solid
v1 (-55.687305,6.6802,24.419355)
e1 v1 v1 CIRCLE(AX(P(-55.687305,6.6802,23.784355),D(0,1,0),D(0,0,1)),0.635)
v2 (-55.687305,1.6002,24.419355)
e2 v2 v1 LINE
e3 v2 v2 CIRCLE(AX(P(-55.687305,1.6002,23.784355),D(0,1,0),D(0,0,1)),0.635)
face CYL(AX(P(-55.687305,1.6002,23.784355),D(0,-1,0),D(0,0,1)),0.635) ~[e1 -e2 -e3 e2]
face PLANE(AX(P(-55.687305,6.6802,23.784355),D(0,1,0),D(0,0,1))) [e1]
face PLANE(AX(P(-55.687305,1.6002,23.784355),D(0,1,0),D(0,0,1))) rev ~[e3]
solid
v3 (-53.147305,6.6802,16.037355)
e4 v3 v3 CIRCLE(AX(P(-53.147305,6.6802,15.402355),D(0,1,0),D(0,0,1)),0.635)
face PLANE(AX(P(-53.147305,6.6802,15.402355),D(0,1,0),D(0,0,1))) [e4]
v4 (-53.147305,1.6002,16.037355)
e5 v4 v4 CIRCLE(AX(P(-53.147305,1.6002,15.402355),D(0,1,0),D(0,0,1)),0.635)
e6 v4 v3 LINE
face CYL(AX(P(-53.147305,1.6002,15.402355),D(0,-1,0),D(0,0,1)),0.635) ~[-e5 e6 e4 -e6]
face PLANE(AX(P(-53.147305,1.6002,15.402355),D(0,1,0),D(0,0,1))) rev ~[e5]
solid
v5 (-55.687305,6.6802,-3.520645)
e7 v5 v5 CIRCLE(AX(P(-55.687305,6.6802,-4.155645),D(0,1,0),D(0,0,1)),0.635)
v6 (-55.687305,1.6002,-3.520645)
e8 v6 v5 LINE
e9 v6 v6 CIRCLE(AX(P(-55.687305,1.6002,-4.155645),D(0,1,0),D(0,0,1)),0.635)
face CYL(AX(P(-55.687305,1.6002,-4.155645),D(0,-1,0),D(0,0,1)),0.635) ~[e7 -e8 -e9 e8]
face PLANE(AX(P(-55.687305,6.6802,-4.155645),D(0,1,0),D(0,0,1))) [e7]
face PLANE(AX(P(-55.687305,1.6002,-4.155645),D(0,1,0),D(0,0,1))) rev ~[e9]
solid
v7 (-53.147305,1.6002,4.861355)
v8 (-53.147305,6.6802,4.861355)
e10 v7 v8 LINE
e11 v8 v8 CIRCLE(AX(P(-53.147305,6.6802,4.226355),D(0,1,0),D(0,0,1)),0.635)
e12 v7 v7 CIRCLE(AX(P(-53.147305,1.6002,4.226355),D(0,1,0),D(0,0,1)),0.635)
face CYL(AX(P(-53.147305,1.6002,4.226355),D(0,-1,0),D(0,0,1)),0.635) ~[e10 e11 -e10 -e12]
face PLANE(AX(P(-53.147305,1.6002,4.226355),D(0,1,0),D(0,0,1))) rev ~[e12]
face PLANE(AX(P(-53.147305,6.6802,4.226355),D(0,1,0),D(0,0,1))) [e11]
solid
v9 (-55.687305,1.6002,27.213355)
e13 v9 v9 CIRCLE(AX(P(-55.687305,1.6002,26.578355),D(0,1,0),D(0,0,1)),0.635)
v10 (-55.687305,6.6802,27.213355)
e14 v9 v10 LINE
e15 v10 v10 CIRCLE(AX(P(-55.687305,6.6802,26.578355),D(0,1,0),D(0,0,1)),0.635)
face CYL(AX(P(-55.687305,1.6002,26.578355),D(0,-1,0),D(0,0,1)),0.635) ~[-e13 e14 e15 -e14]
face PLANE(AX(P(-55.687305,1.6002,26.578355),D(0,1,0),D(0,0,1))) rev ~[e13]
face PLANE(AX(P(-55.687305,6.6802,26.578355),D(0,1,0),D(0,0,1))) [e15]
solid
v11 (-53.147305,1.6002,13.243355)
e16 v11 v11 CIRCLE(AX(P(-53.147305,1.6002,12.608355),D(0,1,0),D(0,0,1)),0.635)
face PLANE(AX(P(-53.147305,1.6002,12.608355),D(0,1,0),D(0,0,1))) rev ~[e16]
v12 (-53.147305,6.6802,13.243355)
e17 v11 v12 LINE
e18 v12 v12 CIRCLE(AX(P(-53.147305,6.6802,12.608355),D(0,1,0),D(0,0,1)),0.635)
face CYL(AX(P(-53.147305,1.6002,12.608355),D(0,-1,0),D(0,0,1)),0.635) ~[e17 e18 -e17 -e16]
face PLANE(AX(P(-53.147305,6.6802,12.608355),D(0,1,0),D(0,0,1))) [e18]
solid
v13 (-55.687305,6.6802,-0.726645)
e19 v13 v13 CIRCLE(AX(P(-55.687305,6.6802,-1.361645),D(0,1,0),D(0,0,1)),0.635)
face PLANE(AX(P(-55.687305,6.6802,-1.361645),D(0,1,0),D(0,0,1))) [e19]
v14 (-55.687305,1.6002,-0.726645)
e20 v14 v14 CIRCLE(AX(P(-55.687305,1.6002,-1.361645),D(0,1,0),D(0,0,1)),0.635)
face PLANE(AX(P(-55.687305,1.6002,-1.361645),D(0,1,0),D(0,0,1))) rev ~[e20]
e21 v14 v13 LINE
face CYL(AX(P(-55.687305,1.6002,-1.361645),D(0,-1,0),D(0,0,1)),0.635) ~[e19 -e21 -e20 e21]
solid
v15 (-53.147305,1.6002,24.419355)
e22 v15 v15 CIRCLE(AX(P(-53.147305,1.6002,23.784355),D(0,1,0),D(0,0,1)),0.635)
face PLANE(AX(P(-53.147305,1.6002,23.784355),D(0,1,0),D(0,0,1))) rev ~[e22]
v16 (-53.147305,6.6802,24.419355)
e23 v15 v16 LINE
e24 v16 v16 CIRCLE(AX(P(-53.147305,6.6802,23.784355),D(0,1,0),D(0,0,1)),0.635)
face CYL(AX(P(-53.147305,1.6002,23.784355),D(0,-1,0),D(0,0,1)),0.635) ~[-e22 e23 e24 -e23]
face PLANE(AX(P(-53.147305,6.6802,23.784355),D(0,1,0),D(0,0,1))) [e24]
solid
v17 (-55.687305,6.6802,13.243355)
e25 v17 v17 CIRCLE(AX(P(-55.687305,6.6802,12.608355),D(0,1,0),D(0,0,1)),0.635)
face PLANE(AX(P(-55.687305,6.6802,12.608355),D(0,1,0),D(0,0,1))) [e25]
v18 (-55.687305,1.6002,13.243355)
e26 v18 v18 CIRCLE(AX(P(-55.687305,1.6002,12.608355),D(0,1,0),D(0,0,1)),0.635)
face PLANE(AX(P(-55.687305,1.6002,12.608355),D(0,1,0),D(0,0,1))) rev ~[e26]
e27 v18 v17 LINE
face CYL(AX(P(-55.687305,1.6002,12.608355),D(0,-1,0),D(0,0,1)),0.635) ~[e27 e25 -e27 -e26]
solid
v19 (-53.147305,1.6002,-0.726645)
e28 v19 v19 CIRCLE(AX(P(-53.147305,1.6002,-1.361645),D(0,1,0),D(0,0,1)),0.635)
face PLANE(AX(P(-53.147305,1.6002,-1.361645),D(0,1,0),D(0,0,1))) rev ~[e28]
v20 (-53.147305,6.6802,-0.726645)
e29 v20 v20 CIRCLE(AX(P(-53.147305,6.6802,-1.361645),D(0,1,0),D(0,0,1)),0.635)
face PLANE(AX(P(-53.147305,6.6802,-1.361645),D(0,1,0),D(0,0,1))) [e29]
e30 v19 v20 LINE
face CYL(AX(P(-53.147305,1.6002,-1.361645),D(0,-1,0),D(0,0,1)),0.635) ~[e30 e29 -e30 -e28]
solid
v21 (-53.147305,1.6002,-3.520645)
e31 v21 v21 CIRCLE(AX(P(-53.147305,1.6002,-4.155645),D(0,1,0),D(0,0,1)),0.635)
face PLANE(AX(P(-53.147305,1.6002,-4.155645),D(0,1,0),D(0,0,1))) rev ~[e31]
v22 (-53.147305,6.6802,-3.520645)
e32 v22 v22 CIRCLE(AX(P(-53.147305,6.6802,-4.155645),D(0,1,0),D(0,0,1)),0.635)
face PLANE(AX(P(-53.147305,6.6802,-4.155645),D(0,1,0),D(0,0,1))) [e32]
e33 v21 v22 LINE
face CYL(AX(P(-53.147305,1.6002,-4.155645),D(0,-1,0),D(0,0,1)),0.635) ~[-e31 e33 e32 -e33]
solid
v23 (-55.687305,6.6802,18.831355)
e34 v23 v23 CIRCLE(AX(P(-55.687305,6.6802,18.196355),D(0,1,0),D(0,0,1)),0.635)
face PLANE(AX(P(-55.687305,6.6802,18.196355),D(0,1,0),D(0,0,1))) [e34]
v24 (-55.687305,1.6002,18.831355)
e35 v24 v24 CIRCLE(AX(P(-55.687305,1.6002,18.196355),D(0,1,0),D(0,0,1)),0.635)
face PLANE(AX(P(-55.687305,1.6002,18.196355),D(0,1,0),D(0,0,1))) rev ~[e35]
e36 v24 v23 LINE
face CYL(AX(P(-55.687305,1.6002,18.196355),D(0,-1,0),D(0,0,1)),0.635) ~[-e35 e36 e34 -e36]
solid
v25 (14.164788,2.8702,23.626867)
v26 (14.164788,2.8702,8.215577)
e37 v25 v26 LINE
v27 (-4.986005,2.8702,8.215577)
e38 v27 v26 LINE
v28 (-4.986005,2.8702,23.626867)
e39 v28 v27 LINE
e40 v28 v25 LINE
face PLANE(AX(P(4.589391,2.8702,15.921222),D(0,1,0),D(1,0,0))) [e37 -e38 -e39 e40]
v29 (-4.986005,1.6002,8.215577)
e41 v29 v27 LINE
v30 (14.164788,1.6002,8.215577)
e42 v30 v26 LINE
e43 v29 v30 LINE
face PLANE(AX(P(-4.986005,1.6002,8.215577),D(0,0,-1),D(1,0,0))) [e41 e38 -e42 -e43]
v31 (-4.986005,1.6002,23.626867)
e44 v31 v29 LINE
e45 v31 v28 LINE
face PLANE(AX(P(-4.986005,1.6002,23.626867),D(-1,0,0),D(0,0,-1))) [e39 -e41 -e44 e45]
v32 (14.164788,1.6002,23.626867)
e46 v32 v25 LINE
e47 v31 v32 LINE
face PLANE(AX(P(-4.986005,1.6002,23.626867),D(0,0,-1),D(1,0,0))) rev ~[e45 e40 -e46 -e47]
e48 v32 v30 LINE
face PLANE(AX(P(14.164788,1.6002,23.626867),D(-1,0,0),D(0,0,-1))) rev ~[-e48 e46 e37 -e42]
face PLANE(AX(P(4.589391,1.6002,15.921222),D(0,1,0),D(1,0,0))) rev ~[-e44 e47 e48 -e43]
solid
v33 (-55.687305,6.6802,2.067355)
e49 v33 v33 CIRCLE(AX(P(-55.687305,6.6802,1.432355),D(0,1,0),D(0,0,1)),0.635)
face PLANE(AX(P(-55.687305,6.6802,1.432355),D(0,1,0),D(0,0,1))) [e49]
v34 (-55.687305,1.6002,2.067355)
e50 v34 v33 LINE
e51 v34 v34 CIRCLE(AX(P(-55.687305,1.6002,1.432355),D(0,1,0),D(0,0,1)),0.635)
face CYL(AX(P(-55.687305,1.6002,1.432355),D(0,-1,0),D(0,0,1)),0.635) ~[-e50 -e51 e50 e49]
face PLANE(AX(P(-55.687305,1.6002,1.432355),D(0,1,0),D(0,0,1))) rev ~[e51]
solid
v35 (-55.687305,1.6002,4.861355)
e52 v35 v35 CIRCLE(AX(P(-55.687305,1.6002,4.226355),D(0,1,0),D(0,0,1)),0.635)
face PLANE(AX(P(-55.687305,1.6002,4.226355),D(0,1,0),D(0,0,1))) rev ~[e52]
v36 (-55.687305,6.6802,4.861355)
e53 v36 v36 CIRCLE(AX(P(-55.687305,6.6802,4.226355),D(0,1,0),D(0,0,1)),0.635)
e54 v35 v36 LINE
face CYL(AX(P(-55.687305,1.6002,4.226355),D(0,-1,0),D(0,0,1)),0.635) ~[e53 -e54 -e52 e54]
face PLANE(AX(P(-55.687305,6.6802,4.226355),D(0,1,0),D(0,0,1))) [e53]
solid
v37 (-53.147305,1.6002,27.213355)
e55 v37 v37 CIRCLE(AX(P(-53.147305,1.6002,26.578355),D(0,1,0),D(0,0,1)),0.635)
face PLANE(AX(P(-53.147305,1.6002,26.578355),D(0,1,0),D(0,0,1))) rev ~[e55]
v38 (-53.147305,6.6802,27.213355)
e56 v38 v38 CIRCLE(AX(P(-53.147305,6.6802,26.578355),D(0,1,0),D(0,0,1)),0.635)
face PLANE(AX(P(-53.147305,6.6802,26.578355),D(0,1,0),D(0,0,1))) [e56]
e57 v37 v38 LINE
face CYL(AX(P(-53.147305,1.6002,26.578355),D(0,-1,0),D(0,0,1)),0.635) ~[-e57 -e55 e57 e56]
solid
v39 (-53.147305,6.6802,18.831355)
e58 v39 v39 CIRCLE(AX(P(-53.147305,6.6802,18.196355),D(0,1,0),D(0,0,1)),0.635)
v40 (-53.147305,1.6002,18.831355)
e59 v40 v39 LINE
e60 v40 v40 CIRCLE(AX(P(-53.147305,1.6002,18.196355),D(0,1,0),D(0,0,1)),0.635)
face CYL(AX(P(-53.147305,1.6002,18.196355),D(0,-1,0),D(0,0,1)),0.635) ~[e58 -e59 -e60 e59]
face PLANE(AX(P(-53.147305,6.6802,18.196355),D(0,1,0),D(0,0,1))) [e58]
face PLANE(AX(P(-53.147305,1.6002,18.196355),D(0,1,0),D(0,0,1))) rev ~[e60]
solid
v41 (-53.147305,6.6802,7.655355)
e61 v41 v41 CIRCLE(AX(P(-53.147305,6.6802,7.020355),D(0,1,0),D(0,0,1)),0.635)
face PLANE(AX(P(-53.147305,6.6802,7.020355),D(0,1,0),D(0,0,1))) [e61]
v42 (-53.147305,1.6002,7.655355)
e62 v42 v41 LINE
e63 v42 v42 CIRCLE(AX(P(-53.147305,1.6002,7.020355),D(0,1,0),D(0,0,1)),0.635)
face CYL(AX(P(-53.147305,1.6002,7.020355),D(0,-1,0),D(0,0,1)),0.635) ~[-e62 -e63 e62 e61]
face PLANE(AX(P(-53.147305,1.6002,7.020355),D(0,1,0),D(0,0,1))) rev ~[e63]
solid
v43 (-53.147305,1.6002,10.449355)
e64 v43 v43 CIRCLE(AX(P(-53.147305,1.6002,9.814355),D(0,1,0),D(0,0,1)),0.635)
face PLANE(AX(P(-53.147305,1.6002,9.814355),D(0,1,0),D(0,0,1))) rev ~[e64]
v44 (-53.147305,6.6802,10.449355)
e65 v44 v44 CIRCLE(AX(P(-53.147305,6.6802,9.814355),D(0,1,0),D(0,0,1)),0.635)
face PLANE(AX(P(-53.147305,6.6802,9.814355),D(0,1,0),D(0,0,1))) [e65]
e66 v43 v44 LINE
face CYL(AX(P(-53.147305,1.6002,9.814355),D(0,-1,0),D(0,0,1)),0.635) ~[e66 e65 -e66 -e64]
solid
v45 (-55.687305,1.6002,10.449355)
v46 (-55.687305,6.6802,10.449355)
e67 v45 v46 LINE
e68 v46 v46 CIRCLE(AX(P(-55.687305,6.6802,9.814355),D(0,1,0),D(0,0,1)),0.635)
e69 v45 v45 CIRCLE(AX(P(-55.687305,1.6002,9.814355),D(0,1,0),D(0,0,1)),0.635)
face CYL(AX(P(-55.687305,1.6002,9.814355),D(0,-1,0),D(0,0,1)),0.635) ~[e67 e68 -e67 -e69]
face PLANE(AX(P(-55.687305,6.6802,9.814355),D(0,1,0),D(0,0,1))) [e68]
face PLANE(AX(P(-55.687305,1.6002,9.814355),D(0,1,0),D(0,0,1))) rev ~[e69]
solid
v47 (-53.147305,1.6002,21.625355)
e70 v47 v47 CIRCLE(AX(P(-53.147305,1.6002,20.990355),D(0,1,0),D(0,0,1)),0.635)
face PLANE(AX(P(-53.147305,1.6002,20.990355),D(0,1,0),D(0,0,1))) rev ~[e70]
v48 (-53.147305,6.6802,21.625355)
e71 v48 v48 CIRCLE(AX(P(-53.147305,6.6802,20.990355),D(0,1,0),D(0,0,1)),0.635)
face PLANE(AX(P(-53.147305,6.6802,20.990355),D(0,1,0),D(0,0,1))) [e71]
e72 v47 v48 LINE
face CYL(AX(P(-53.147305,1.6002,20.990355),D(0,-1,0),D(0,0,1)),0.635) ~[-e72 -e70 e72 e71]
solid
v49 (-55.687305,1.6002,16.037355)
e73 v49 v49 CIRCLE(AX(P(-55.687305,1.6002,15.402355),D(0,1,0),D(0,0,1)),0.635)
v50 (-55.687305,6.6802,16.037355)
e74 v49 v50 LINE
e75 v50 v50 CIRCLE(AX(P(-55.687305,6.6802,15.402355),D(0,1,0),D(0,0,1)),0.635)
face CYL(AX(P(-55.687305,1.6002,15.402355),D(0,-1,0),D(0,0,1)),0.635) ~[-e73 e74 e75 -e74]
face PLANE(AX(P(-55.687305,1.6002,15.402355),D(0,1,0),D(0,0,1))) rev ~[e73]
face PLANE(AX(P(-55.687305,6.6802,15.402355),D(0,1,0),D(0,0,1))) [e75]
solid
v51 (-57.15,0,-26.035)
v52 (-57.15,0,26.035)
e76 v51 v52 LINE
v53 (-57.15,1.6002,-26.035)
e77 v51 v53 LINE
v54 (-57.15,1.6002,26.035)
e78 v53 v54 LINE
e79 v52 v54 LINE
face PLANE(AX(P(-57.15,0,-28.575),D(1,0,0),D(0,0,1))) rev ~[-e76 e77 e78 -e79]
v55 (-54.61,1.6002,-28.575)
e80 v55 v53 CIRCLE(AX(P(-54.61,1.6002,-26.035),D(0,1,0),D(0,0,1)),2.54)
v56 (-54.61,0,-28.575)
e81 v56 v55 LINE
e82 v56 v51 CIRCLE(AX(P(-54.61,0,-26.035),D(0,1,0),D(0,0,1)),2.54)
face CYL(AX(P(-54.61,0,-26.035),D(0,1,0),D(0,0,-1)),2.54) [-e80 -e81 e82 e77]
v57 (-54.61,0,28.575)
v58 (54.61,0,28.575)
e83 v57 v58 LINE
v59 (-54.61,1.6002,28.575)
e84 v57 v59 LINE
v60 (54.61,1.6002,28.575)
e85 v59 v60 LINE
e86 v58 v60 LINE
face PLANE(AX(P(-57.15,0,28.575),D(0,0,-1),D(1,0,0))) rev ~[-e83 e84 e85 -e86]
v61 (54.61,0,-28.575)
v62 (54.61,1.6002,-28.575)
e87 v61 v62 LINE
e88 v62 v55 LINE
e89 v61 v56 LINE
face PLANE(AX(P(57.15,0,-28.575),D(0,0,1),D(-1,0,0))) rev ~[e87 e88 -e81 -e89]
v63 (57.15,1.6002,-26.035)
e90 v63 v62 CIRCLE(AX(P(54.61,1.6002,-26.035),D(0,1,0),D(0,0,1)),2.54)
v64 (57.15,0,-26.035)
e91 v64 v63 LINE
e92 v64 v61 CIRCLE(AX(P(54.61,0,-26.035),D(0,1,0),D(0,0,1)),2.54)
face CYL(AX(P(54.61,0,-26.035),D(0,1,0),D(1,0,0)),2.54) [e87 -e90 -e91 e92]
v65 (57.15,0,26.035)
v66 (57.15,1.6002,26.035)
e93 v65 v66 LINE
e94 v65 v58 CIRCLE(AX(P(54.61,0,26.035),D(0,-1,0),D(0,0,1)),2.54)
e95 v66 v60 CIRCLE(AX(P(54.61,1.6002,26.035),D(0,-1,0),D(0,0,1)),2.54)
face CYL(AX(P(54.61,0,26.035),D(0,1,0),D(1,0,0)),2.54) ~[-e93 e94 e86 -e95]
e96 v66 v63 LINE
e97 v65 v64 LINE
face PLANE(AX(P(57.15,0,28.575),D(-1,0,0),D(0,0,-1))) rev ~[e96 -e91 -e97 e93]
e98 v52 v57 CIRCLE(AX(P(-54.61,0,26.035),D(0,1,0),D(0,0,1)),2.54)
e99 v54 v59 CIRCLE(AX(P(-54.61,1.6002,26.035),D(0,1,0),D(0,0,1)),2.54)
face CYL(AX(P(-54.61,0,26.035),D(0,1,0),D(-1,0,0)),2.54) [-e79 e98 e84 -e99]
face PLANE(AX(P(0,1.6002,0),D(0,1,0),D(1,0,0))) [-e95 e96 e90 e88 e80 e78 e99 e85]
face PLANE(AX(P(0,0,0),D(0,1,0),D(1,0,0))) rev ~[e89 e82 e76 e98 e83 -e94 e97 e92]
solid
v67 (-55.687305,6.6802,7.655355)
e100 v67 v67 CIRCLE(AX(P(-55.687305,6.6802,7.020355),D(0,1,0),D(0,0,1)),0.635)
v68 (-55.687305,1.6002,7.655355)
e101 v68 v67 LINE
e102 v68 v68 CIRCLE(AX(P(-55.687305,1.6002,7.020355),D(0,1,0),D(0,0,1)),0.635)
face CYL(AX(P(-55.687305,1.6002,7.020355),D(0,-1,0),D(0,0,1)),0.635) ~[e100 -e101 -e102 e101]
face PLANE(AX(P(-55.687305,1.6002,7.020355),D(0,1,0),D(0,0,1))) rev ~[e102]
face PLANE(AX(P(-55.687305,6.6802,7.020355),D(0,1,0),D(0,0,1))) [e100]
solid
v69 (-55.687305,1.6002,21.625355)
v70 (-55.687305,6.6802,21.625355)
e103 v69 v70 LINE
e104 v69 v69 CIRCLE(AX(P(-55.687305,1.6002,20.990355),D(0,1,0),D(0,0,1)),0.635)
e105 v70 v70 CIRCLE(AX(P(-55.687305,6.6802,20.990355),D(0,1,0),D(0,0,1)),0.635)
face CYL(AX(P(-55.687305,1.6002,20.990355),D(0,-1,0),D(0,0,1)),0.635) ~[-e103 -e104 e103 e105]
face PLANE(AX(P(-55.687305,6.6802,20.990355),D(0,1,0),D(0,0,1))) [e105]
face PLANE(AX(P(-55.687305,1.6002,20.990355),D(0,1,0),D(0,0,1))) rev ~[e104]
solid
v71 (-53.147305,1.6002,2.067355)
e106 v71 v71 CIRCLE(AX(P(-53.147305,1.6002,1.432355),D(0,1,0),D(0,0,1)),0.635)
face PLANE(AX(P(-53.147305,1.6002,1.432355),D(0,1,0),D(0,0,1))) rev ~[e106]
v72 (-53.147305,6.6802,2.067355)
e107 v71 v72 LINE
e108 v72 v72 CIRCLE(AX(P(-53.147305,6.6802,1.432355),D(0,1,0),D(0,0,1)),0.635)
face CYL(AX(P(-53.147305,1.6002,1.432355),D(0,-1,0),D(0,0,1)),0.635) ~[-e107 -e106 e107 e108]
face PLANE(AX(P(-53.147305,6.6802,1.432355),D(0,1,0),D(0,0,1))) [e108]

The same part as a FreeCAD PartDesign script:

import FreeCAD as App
import Part
import Sketcher
from FreeCAD import Vector
Q = App.Units.Quantity


def edges_at(feature, points):
    """Names of the edges that pass closest to the given points."""
    edges = feature.Shape.Edges
    near = lambda p: min(range(len(edges)), key=lambda i: edges[i].distToShape(Part.Vertex(*p))[0])
    return sorted({f"Edge{near(p) + 1}" for p in points})

doc = App.newDocument("Part")
body = doc.addObject("PartDesign::Body", "Body")

# Sketch on XZ plane
sketch1 = body.newObject("Sketcher::SketchObject", "Sketch")
sketch1.AttachmentSupport = (doc.getObject("XZ_Plane"), [""])
sketch1.MapMode = "FlatFace"
sketch1.addGeometry(Part.LineSegment(Vector(57, 29, 0), Vector(57, -29, 0)), False)
sketch1.addGeometry(Part.LineSegment(Vector(57, -29, 0), Vector(-57, -29, 0)), False)
sketch1.addGeometry(Part.LineSegment(Vector(-57, -29, 0), Vector(-57, 29, 0)), False)
sketch1.addGeometry(Part.LineSegment(Vector(-57, 29, 0), Vector(57, 29, 0)), False)
sketch1.addConstraint(Sketcher.Constraint("Coincident", 0, 2, 1, 1))
sketch1.addConstraint(Sketcher.Constraint("Coincident", 1, 2, 2, 1))
sketch1.addConstraint(Sketcher.Constraint("Coincident", 2, 2, 3, 1))
sketch1.addConstraint(Sketcher.Constraint("Coincident", 3, 2, 0, 1))
sketch1.addConstraint(Sketcher.Constraint("Vertical", 0))
sketch1.addConstraint(Sketcher.Constraint("Horizontal", 1))
sketch1.addConstraint(Sketcher.Constraint("Vertical", 2))
sketch1.addConstraint(Sketcher.Constraint("Horizontal", 3))
sketch1.addConstraint(Sketcher.Constraint("Symmetric", 0, 2, 2, 2, -1, 1))
sketch1.addConstraint(Sketcher.Constraint("DistanceX", 1, 2, 1, 1, Q("4.5 in")))
sketch1.addConstraint(Sketcher.Constraint("DistanceY", 0, 2, 0, 1, Q("2.25 in")))
pad1 = body.newObject("PartDesign::Pad", "Pad")
pad1.Profile = sketch1
pad1.Length = Q("0.063 in")
pad1.Reversed = True
doc.recompute()

fillet = body.newObject("PartDesign::Fillet", "Fillet")
fillet.Base = (pad1, edges_at(pad1, [
    (57.15, 0.8, 28.575),
    (-57.15, 0.8, 28.575),
    (-57.15, 0.8, -28.575),
    (57.15, 0.8, -28.575),
]))
fillet.Radius = Q("0.1 in")
body2 = doc.addObject("PartDesign::Body", "Body001")

# Sketch on XZ plane
sketch2 = body2.newObject("Sketcher::SketchObject", "Sketch001")
sketch2.AttachmentSupport = (doc.getObject("XZ_Plane001"), [""])
sketch2.MapMode = "FlatFace"
sketch2.AttachmentOffset = App.Placement(Vector(0, 0, -0.063 * 25.4), App.Rotation())
sketch2.addGeometry(Part.LineSegment(Vector(-5, 8, 0), Vector(-5, 24, 0)), False)
sketch2.addGeometry(Part.LineSegment(Vector(-5, 24, 0), Vector(14, 24, 0)), False)
sketch2.addGeometry(Part.LineSegment(Vector(14, 24, 0), Vector(14, 8, 0)), False)
sketch2.addGeometry(Part.LineSegment(Vector(14, 8, 0), Vector(-5, 8, 0)), False)
sketch2.addConstraint(Sketcher.Constraint("Coincident", 0, 2, 1, 1))
sketch2.addConstraint(Sketcher.Constraint("Coincident", 1, 2, 2, 1))
sketch2.addConstraint(Sketcher.Constraint("Coincident", 2, 2, 3, 1))
sketch2.addConstraint(Sketcher.Constraint("Coincident", 3, 2, 0, 1))
sketch2.addConstraint(Sketcher.Constraint("Vertical", 0))
sketch2.addConstraint(Sketcher.Constraint("Horizontal", 1))
sketch2.addConstraint(Sketcher.Constraint("Vertical", 2))
sketch2.addConstraint(Sketcher.Constraint("Horizontal", 3))
sketch2.addConstraint(Sketcher.Constraint("DistanceY", 0, 1, 0, 2, Q("15.41129 mm")))
sketch2.addConstraint(Sketcher.Constraint("DistanceX", 1, 1, 1, 2, Q("19.150794 mm")))
sketch2.addConstraint(Sketcher.Constraint("DistanceX", -1, 1, 1, 2, Q("14.164788 mm")))
sketch2.addConstraint(Sketcher.Constraint("DistanceY", -1, 1, 0, 2, Q("23.626867 mm")))
pad2 = body2.newObject("PartDesign::Pad", "Pad001")
pad2.Profile = sketch2
pad2.Length = Q("0.05 in")
pad2.Reversed = True
body3 = doc.addObject("PartDesign::Body", "Body002")

# Sketch on XZ plane
sketch3 = body3.newObject("Sketcher::SketchObject", "Sketch002")
sketch3.AttachmentSupport = (doc.getObject("XZ_Plane002"), [""])
sketch3.MapMode = "FlatFace"
sketch3.AttachmentOffset = App.Placement(Vector(0, 0, -0.063 * 25.4), App.Rotation())
sketch3.addGeometry(Part.Circle(Vector(-55.7, -4.2, 0), Vector(0, 0, 1), 0.6), False)
sketch3.addConstraint(Sketcher.Constraint("Diameter", 0, Q("0.05 in")))
sketch3.addConstraint(Sketcher.Constraint("DistanceX", 0, 3, -1, 1, Q("55.687305 mm")))
sketch3.addConstraint(Sketcher.Constraint("DistanceY", 0, 3, -1, 1, Q("4.155645 mm")))
pad3 = body3.newObject("PartDesign::Pad", "Pad002")
pad3.Profile = sketch3
pad3.Length = Q("0.2 in")
pad3.Reversed = True
body4 = doc.addObject("PartDesign::Body", "Body003")

# Sketch on XZ plane
sketch4 = body4.newObject("Sketcher::SketchObject", "Sketch003")
sketch4.AttachmentSupport = (doc.getObject("XZ_Plane003"), [""])
sketch4.MapMode = "FlatFace"
sketch4.AttachmentOffset = App.Placement(Vector(0, 0, -0.063 * 25.4), App.Rotation())
sketch4.addGeometry(Part.Circle(Vector(-53.1, -4.2, 0), Vector(0, 0, 1), 0.6), False)
sketch4.addConstraint(Sketcher.Constraint("Diameter", 0, Q("0.05 in")))
sketch4.addConstraint(Sketcher.Constraint("DistanceX", 0, 3, -1, 1, Q("53.147305 mm")))
sketch4.addConstraint(Sketcher.Constraint("DistanceY", 0, 3, -1, 1, Q("4.155645 mm")))
pad4 = body4.newObject("PartDesign::Pad", "Pad003")
pad4.Profile = sketch4
pad4.Length = Q("0.2 in")
pad4.Reversed = True
body5 = doc.addObject("PartDesign::Body", "Body004")

# Sketch on XZ plane
sketch5 = body5.newObject("Sketcher::SketchObject", "Sketch004")
sketch5.AttachmentSupport = (doc.getObject("XZ_Plane004"), [""])
sketch5.MapMode = "FlatFace"
sketch5.AttachmentOffset = App.Placement(Vector(0, 0, -0.063 * 25.4), App.Rotation())
sketch5.addGeometry(Part.Circle(Vector(-55.7, -1.4, 0), Vector(0, 0, 1), 0.6), False)
sketch5.addConstraint(Sketcher.Constraint("Diameter", 0, Q("0.05 in")))
sketch5.addConstraint(Sketcher.Constraint("DistanceX", 0, 3, -1, 1, Q("55.687305 mm")))
sketch5.addConstraint(Sketcher.Constraint("DistanceY", 0, 3, -1, 1, Q("1.361645 mm")))
pad5 = body5.newObject("PartDesign::Pad", "Pad004")
pad5.Profile = sketch5
pad5.Length = Q("0.2 in")
pad5.Reversed = True
body6 = doc.addObject("PartDesign::Body", "Body005")

# Sketch on XZ plane
sketch6 = body6.newObject("Sketcher::SketchObject", "Sketch005")
sketch6.AttachmentSupport = (doc.getObject("XZ_Plane005"), [""])
sketch6.MapMode = "FlatFace"
sketch6.AttachmentOffset = App.Placement(Vector(0, 0, -0.063 * 25.4), App.Rotation())
sketch6.addGeometry(Part.Circle(Vector(-53.1, -1.4, 0), Vector(0, 0, 1), 0.6), False)
sketch6.addConstraint(Sketcher.Constraint("Diameter", 0, Q("0.05 in")))
sketch6.addConstraint(Sketcher.Constraint("DistanceX", 0, 3, -1, 1, Q("53.147305 mm")))
sketch6.addConstraint(Sketcher.Constraint("DistanceY", 0, 3, -1, 1, Q("1.361645 mm")))
pad6 = body6.newObject("PartDesign::Pad", "Pad005")
pad6.Profile = sketch6
pad6.Length = Q("0.2 in")
pad6.Reversed = True
body7 = doc.addObject("PartDesign::Body", "Body006")

# Sketch on XZ plane
sketch7 = body7.newObject("Sketcher::SketchObject", "Sketch006")
sketch7.AttachmentSupport = (doc.getObject("XZ_Plane006"), [""])
sketch7.MapMode = "FlatFace"
sketch7.AttachmentOffset = App.Placement(Vector(0, 0, -0.063 * 25.4), App.Rotation())
sketch7.addGeometry(Part.Circle(Vector(-55.7, 1.4, 0), Vector(0, 0, 1), 0.6), False)
sketch7.addConstraint(Sketcher.Constraint("Diameter", 0, Q("0.05 in")))
sketch7.addConstraint(Sketcher.Constraint("DistanceX", 0, 3, -1, 1, Q("55.687305 mm")))
sketch7.addConstraint(Sketcher.Constraint("DistanceY", -1, 1, 0, 3, Q("1.432355 mm")))
pad7 = body7.newObject("PartDesign::Pad", "Pad006")
pad7.Profile = sketch7
pad7.Length = Q("0.2 in")
pad7.Reversed = True
body8 = doc.addObject("PartDesign::Body", "Body007")

# Sketch on XZ plane
sketch8 = body8.newObject("Sketcher::SketchObject", "Sketch007")
sketch8.AttachmentSupport = (doc.getObject("XZ_Plane007"), [""])
sketch8.MapMode = "FlatFace"
sketch8.AttachmentOffset = App.Placement(Vector(0, 0, -0.063 * 25.4), App.Rotation())
sketch8.addGeometry(Part.Circle(Vector(-53.1, 1.4, 0), Vector(0, 0, 1), 0.6), False)
sketch8.addConstraint(Sketcher.Constraint("Diameter", 0, Q("0.05 in")))
sketch8.addConstraint(Sketcher.Constraint("DistanceX", 0, 3, -1, 1, Q("53.147305 mm")))
sketch8.addConstraint(Sketcher.Constraint("DistanceY", -1, 1, 0, 3, Q("1.432355 mm")))
pad8 = body8.newObject("PartDesign::Pad", "Pad007")
pad8.Profile = sketch8
pad8.Length = Q("0.2 in")
pad8.Reversed = True
body9 = doc.addObject("PartDesign::Body", "Body008")

# Sketch on XZ plane
sketch9 = body9.newObject("Sketcher::SketchObject", "Sketch008")
sketch9.AttachmentSupport = (doc.getObject("XZ_Plane008"), [""])
sketch9.MapMode = "FlatFace"
sketch9.AttachmentOffset = App.Placement(Vector(0, 0, -0.063 * 25.4), App.Rotation())
sketch9.addGeometry(Part.Circle(Vector(-55.7, 4.2, 0), Vector(0, 0, 1), 0.6), False)
sketch9.addConstraint(Sketcher.Constraint("Diameter", 0, Q("0.05 in")))
sketch9.addConstraint(Sketcher.Constraint("DistanceX", 0, 3, -1, 1, Q("55.687305 mm")))
sketch9.addConstraint(Sketcher.Constraint("DistanceY", -1, 1, 0, 3, Q("4.226355 mm")))
pad9 = body9.newObject("PartDesign::Pad", "Pad008")
pad9.Profile = sketch9
pad9.Length = Q("0.2 in")
pad9.Reversed = True
body10 = doc.addObject("PartDesign::Body", "Body009")

# Sketch on XZ plane
sketch10 = body10.newObject("Sketcher::SketchObject", "Sketch009")
sketch10.AttachmentSupport = (doc.getObject("XZ_Plane009"), [""])
sketch10.MapMode = "FlatFace"
sketch10.AttachmentOffset = App.Placement(Vector(0, 0, -0.063 * 25.4), App.Rotation())
sketch10.addGeometry(Part.Circle(Vector(-53.1, 4.2, 0), Vector(0, 0, 1), 0.6), False)
sketch10.addConstraint(Sketcher.Constraint("Diameter", 0, Q("0.05 in")))
sketch10.addConstraint(Sketcher.Constraint("DistanceX", 0, 3, -1, 1, Q("53.147305 mm")))
sketch10.addConstraint(Sketcher.Constraint("DistanceY", -1, 1, 0, 3, Q("4.226355 mm")))
pad10 = body10.newObject("PartDesign::Pad", "Pad009")
pad10.Profile = sketch10
pad10.Length = Q("0.2 in")
pad10.Reversed = True
body11 = doc.addObject("PartDesign::Body", "Body010")

# Sketch on XZ plane
sketch11 = body11.newObject("Sketcher::SketchObject", "Sketch010")
sketch11.AttachmentSupport = (doc.getObject("XZ_Plane010"), [""])
sketch11.MapMode = "FlatFace"
sketch11.AttachmentOffset = App.Placement(Vector(0, 0, -0.063 * 25.4), App.Rotation())
sketch11.addGeometry(Part.Circle(Vector(-55.7, 7, 0), Vector(0, 0, 1), 0.6), False)
sketch11.addConstraint(Sketcher.Constraint("Diameter", 0, Q("0.05 in")))
sketch11.addConstraint(Sketcher.Constraint("DistanceX", 0, 3, -1, 1, Q("55.687305 mm")))
sketch11.addConstraint(Sketcher.Constraint("DistanceY", -1, 1, 0, 3, Q("7.020355 mm")))
pad11 = body11.newObject("PartDesign::Pad", "Pad010")
pad11.Profile = sketch11
pad11.Length = Q("0.2 in")
pad11.Reversed = True
body12 = doc.addObject("PartDesign::Body", "Body011")

# Sketch on XZ plane
sketch12 = body12.newObject("Sketcher::SketchObject", "Sketch011")
sketch12.AttachmentSupport = (doc.getObject("XZ_Plane011"), [""])
sketch12.MapMode = "FlatFace"
sketch12.AttachmentOffset = App.Placement(Vector(0, 0, -0.063 * 25.4), App.Rotation())
sketch12.addGeometry(Part.Circle(Vector(-53.1, 7, 0), Vector(0, 0, 1), 0.6), False)
sketch12.addConstraint(Sketcher.Constraint("Diameter", 0, Q("0.05 in")))
sketch12.addConstraint(Sketcher.Constraint("DistanceX", 0, 3, -1, 1, Q("53.147305 mm")))
sketch12.addConstraint(Sketcher.Constraint("DistanceY", -1, 1, 0, 3, Q("7.020355 mm")))
pad12 = body12.newObject("PartDesign::Pad", "Pad011")
pad12.Profile = sketch12
pad12.Length = Q("0.2 in")
pad12.Reversed = True
body13 = doc.addObject("PartDesign::Body", "Body012")

# Sketch on XZ plane
sketch13 = body13.newObject("Sketcher::SketchObject", "Sketch012")
sketch13.AttachmentSupport = (doc.getObject("XZ_Plane012"), [""])
sketch13.MapMode = "FlatFace"
sketch13.AttachmentOffset = App.Placement(Vector(0, 0, -0.063 * 25.4), App.Rotation())
sketch13.addGeometry(Part.Circle(Vector(-55.7, 9.8, 0), Vector(0, 0, 1), 0.6), False)
sketch13.addConstraint(Sketcher.Constraint("Diameter", 0, Q("0.05 in")))
sketch13.addConstraint(Sketcher.Constraint("DistanceX", 0, 3, -1, 1, Q("55.687305 mm")))
sketch13.addConstraint(Sketcher.Constraint("DistanceY", -1, 1, 0, 3, Q("9.814355 mm")))
pad13 = body13.newObject("PartDesign::Pad", "Pad012")
pad13.Profile = sketch13
pad13.Length = Q("0.2 in")
pad13.Reversed = True
body14 = doc.addObject("PartDesign::Body", "Body013")

# Sketch on XZ plane
sketch14 = body14.newObject("Sketcher::SketchObject", "Sketch013")
sketch14.AttachmentSupport = (doc.getObject("XZ_Plane013"), [""])
sketch14.MapMode = "FlatFace"
sketch14.AttachmentOffset = App.Placement(Vector(0, 0, -0.063 * 25.4), App.Rotation())
sketch14.addGeometry(Part.Circle(Vector(-53.1, 9.8, 0), Vector(0, 0, 1), 0.6), False)
sketch14.addConstraint(Sketcher.Constraint("Diameter", 0, Q("0.05 in")))
sketch14.addConstraint(Sketcher.Constraint("DistanceX", 0, 3, -1, 1, Q("53.147305 mm")))
sketch14.addConstraint(Sketcher.Constraint("DistanceY", -1, 1, 0, 3, Q("9.814355 mm")))
pad14 = body14.newObject("PartDesign::Pad", "Pad013")
pad14.Profile = sketch14
pad14.Length = Q("0.2 in")
pad14.Reversed = True
body15 = doc.addObject("PartDesign::Body", "Body014")

# Sketch on XZ plane
sketch15 = body15.newObject("Sketcher::SketchObject", "Sketch014")
sketch15.AttachmentSupport = (doc.getObject("XZ_Plane014"), [""])
sketch15.MapMode = "FlatFace"
sketch15.AttachmentOffset = App.Placement(Vector(0, 0, -0.063 * 25.4), App.Rotation())
sketch15.addGeometry(Part.Circle(Vector(-55.7, 12.6, 0), Vector(0, 0, 1), 0.6), False)
sketch15.addConstraint(Sketcher.Constraint("Diameter", 0, Q("0.05 in")))
sketch15.addConstraint(Sketcher.Constraint("DistanceX", 0, 3, -1, 1, Q("55.687305 mm")))
sketch15.addConstraint(Sketcher.Constraint("DistanceY", -1, 1, 0, 3, Q("12.608355 mm")))
pad15 = body15.newObject("PartDesign::Pad", "Pad014")
pad15.Profile = sketch15
pad15.Length = Q("0.2 in")
pad15.Reversed = True
body16 = doc.addObject("PartDesign::Body", "Body015")

# Sketch on XZ plane
sketch16 = body16.newObject("Sketcher::SketchObject", "Sketch015")
sketch16.AttachmentSupport = (doc.getObject("XZ_Plane015"), [""])
sketch16.MapMode = "FlatFace"
sketch16.AttachmentOffset = App.Placement(Vector(0, 0, -0.063 * 25.4), App.Rotation())
sketch16.addGeometry(Part.Circle(Vector(-53.1, 12.6, 0), Vector(0, 0, 1), 0.6), False)
sketch16.addConstraint(Sketcher.Constraint("Diameter", 0, Q("0.05 in")))
sketch16.addConstraint(Sketcher.Constraint("DistanceX", 0, 3, -1, 1, Q("53.147305 mm")))
sketch16.addConstraint(Sketcher.Constraint("DistanceY", -1, 1, 0, 3, Q("12.608355 mm")))
pad16 = body16.newObject("PartDesign::Pad", "Pad015")
pad16.Profile = sketch16
pad16.Length = Q("0.2 in")
pad16.Reversed = True
body17 = doc.addObject("PartDesign::Body", "Body016")

# Sketch on XZ plane
sketch17 = body17.newObject("Sketcher::SketchObject", "Sketch016")
sketch17.AttachmentSupport = (doc.getObject("XZ_Plane016"), [""])
sketch17.MapMode = "FlatFace"
sketch17.AttachmentOffset = App.Placement(Vector(0, 0, -0.063 * 25.4), App.Rotation())
sketch17.addGeometry(Part.Circle(Vector(-55.7, 15.4, 0), Vector(0, 0, 1), 0.6), False)
sketch17.addConstraint(Sketcher.Constraint("Diameter", 0, Q("0.05 in")))
sketch17.addConstraint(Sketcher.Constraint("DistanceX", 0, 3, -1, 1, Q("55.687305 mm")))
sketch17.addConstraint(Sketcher.Constraint("DistanceY", -1, 1, 0, 3, Q("15.402355 mm")))
pad17 = body17.newObject("PartDesign::Pad", "Pad016")
pad17.Profile = sketch17
pad17.Length = Q("0.2 in")
pad17.Reversed = True
body18 = doc.addObject("PartDesign::Body", "Body017")

# Sketch on XZ plane
sketch18 = body18.newObject("Sketcher::SketchObject", "Sketch017")
sketch18.AttachmentSupport = (doc.getObject("XZ_Plane017"), [""])
sketch18.MapMode = "FlatFace"
sketch18.AttachmentOffset = App.Placement(Vector(0, 0, -0.063 * 25.4), App.Rotation())
sketch18.addGeometry(Part.Circle(Vector(-53.1, 15.4, 0), Vector(0, 0, 1), 0.6), False)
sketch18.addConstraint(Sketcher.Constraint("Diameter", 0, Q("0.05 in")))
sketch18.addConstraint(Sketcher.Constraint("DistanceX", 0, 3, -1, 1, Q("53.147305 mm")))
sketch18.addConstraint(Sketcher.Constraint("DistanceY", -1, 1, 0, 3, Q("15.402355 mm")))
pad18 = body18.newObject("PartDesign::Pad", "Pad017")
pad18.Profile = sketch18
pad18.Length = Q("0.2 in")
pad18.Reversed = True
body19 = doc.addObject("PartDesign::Body", "Body018")

# Sketch on XZ plane
sketch19 = body19.newObject("Sketcher::SketchObject", "Sketch018")
sketch19.AttachmentSupport = (doc.getObject("XZ_Plane018"), [""])
sketch19.MapMode = "FlatFace"
sketch19.AttachmentOffset = App.Placement(Vector(0, 0, -0.063 * 25.4), App.Rotation())
sketch19.addGeometry(Part.Circle(Vector(-55.7, 18.2, 0), Vector(0, 0, 1), 0.6), False)
sketch19.addConstraint(Sketcher.Constraint("Diameter", 0, Q("0.05 in")))
sketch19.addConstraint(Sketcher.Constraint("DistanceX", 0, 3, -1, 1, Q("55.687305 mm")))
sketch19.addConstraint(Sketcher.Constraint("DistanceY", -1, 1, 0, 3, Q("18.196355 mm")))
pad19 = body19.newObject("PartDesign::Pad", "Pad018")
pad19.Profile = sketch19
pad19.Length = Q("0.2 in")
pad19.Reversed = True
body20 = doc.addObject("PartDesign::Body", "Body019")

# Sketch on XZ plane
sketch20 = body20.newObject("Sketcher::SketchObject", "Sketch019")
sketch20.AttachmentSupport = (doc.getObject("XZ_Plane019"), [""])
sketch20.MapMode = "FlatFace"
sketch20.AttachmentOffset = App.Placement(Vector(0, 0, -0.063 * 25.4), App.Rotation())
sketch20.addGeometry(Part.Circle(Vector(-53.1, 18.2, 0), Vector(0, 0, 1), 0.6), False)
sketch20.addConstraint(Sketcher.Constraint("Diameter", 0, Q("0.05 in")))
sketch20.addConstraint(Sketcher.Constraint("DistanceX", 0, 3, -1, 1, Q("53.147305 mm")))
sketch20.addConstraint(Sketcher.Constraint("DistanceY", -1, 1, 0, 3, Q("18.196355 mm")))
pad20 = body20.newObject("PartDesign::Pad", "Pad019")
pad20.Profile = sketch20
pad20.Length = Q("0.2 in")
pad20.Reversed = True
body21 = doc.addObject("PartDesign::Body", "Body020")

# Sketch on XZ plane
sketch21 = body21.newObject("Sketcher::SketchObject", "Sketch020")
sketch21.AttachmentSupport = (doc.getObject("XZ_Plane020"), [""])
sketch21.MapMode = "FlatFace"
sketch21.AttachmentOffset = App.Placement(Vector(0, 0, -0.063 * 25.4), App.Rotation())
sketch21.addGeometry(Part.Circle(Vector(-55.7, 21, 0), Vector(0, 0, 1), 0.6), False)
sketch21.addConstraint(Sketcher.Constraint("Diameter", 0, Q("0.05 in")))
sketch21.addConstraint(Sketcher.Constraint("DistanceX", 0, 3, -1, 1, Q("55.687305 mm")))
sketch21.addConstraint(Sketcher.Constraint("DistanceY", -1, 1, 0, 3, Q("20.990355 mm")))
pad21 = body21.newObject("PartDesign::Pad", "Pad020")
pad21.Profile = sketch21
pad21.Length = Q("0.2 in")
pad21.Reversed = True
body22 = doc.addObject("PartDesign::Body", "Body021")

# Sketch on XZ plane
sketch22 = body22.newObject("Sketcher::SketchObject", "Sketch021")
sketch22.AttachmentSupport = (doc.getObject("XZ_Plane021"), [""])
sketch22.MapMode = "FlatFace"
sketch22.AttachmentOffset = App.Placement(Vector(0, 0, -0.063 * 25.4), App.Rotation())
sketch22.addGeometry(Part.Circle(Vector(-53.1, 21, 0), Vector(0, 0, 1), 0.6), False)
sketch22.addConstraint(Sketcher.Constraint("Diameter", 0, Q("0.05 in")))
sketch22.addConstraint(Sketcher.Constraint("DistanceX", 0, 3, -1, 1, Q("53.147305 mm")))
sketch22.addConstraint(Sketcher.Constraint("DistanceY", -1, 1, 0, 3, Q("20.990355 mm")))
pad22 = body22.newObject("PartDesign::Pad", "Pad021")
pad22.Profile = sketch22
pad22.Length = Q("0.2 in")
pad22.Reversed = True
body23 = doc.addObject("PartDesign::Body", "Body022")

# Sketch on XZ plane
sketch23 = body23.newObject("Sketcher::SketchObject", "Sketch022")
sketch23.AttachmentSupport = (doc.getObject("XZ_Plane022"), [""])
sketch23.MapMode = "FlatFace"
sketch23.AttachmentOffset = App.Placement(Vector(0, 0, -0.063 * 25.4), App.Rotation())
sketch23.addGeometry(Part.Circle(Vector(-55.7, 23.8, 0), Vector(0, 0, 1), 0.6), False)
sketch23.addConstraint(Sketcher.Constraint("Diameter", 0, Q("0.05 in")))
sketch23.addConstraint(Sketcher.Constraint("DistanceX", 0, 3, -1, 1, Q("55.687305 mm")))
sketch23.addConstraint(Sketcher.Constraint("DistanceY", -1, 1, 0, 3, Q("23.784355 mm")))
pad23 = body23.newObject("PartDesign::Pad", "Pad022")
pad23.Profile = sketch23
pad23.Length = Q("0.2 in")
pad23.Reversed = True
body24 = doc.addObject("PartDesign::Body", "Body023")

# Sketch on XZ plane
sketch24 = body24.newObject("Sketcher::SketchObject", "Sketch023")
sketch24.AttachmentSupport = (doc.getObject("XZ_Plane023"), [""])
sketch24.MapMode = "FlatFace"
sketch24.AttachmentOffset = App.Placement(Vector(0, 0, -0.063 * 25.4), App.Rotation())
sketch24.addGeometry(Part.Circle(Vector(-53.1, 23.8, 0), Vector(0, 0, 1), 0.6), False)
sketch24.addConstraint(Sketcher.Constraint("Diameter", 0, Q("0.05 in")))
sketch24.addConstraint(Sketcher.Constraint("DistanceX", 0, 3, -1, 1, Q("53.147305 mm")))
sketch24.addConstraint(Sketcher.Constraint("DistanceY", -1, 1, 0, 3, Q("23.784355 mm")))
pad24 = body24.newObject("PartDesign::Pad", "Pad023")
pad24.Profile = sketch24
pad24.Length = Q("0.2 in")
pad24.Reversed = True
body25 = doc.addObject("PartDesign::Body", "Body024")

# Sketch on XZ plane
sketch25 = body25.newObject("Sketcher::SketchObject", "Sketch024")
sketch25.AttachmentSupport = (doc.getObject("XZ_Plane024"), [""])
sketch25.MapMode = "FlatFace"
sketch25.AttachmentOffset = App.Placement(Vector(0, 0, -0.063 * 25.4), App.Rotation())
sketch25.addGeometry(Part.Circle(Vector(-55.7, 26.6, 0), Vector(0, 0, 1), 0.6), False)
sketch25.addConstraint(Sketcher.Constraint("Diameter", 0, Q("0.05 in")))
sketch25.addConstraint(Sketcher.Constraint("DistanceX", 0, 3, -1, 1, Q("55.687305 mm")))
sketch25.addConstraint(Sketcher.Constraint("DistanceY", -1, 1, 0, 3, Q("26.578355 mm")))
pad25 = body25.newObject("PartDesign::Pad", "Pad024")
pad25.Profile = sketch25
pad25.Length = Q("0.2 in")
pad25.Reversed = True
body26 = doc.addObject("PartDesign::Body", "Body025")

# Sketch on XZ plane
sketch26 = body26.newObject("Sketcher::SketchObject", "Sketch025")
sketch26.AttachmentSupport = (doc.getObject("XZ_Plane025"), [""])
sketch26.MapMode = "FlatFace"
sketch26.AttachmentOffset = App.Placement(Vector(0, 0, -0.063 * 25.4), App.Rotation())
sketch26.addGeometry(Part.Circle(Vector(-53.1, 26.6, 0), Vector(0, 0, 1), 0.6), False)
sketch26.addConstraint(Sketcher.Constraint("Diameter", 0, Q("0.05 in")))
sketch26.addConstraint(Sketcher.Constraint("DistanceX", 0, 3, -1, 1, Q("53.147305 mm")))
sketch26.addConstraint(Sketcher.Constraint("DistanceY", -1, 1, 0, 3, Q("26.578355 mm")))
pad26 = body26.newObject("PartDesign::Pad", "Pad025")
pad26.Profile = sketch26
pad26.Length = Q("0.2 in")
pad26.Reversed = True

doc.recompute()
